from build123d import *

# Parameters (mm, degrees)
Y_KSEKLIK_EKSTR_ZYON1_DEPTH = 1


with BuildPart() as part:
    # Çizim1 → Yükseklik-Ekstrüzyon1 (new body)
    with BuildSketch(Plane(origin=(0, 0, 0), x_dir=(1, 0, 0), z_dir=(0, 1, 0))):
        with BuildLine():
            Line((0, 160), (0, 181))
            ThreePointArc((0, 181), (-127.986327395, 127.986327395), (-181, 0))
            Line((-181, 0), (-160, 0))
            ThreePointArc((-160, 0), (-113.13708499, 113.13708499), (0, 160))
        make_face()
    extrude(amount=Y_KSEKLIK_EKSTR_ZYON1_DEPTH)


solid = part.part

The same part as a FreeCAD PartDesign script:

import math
import FreeCAD as App
import Part
import Sketcher

V = App.Vector

doc = App.newDocument("Part")
body = doc.addObject("PartDesign::Body", "Body")

# Sketch on XZ plane
sketch1 = doc.addObject("Sketcher::SketchObject", "Sketch")
body.addObject(sketch1)
sketch1.AttachmentSupport = (doc.XZ_Plane, [""])
sketch1.MapMode = "FlatFace"
sketch1.addGeometry([
    Part.LineSegment(V(0, -160, 0), V(0, -181, 0)),
    Part.ArcOfCircle(Part.Circle(V(0, 0, 0), V(0, 0, 1), 181), math.radians(180), math.radians(270)),
    Part.LineSegment(V(-181, 0, 0), V(-160, 0, 0)),
    Part.ArcOfCircle(Part.Circle(V(0, 0, 0), V(0, 0, 1), 160), math.radians(180), math.radians(270)),
], False)
sketch1.addConstraint([
    Sketcher.Constraint("Coincident", 0, 2, 1, 2),
    Sketcher.Constraint("Coincident", 1, 1, 2, 1),
    Sketcher.Constraint("Coincident", 2, 2, 3, 1),
    Sketcher.Constraint("Coincident", 3, 2, 0, 1),
    Sketcher.Constraint("Vertical", 0),
    Sketcher.Constraint("Horizontal", 2),
    Sketcher.Constraint("Coincident", 1, 3, -1, 1),
    Sketcher.Constraint("Coincident", 3, 3, -1, 1),
    Sketcher.Constraint("PointOnObject", 0, 2, -2),
    Sketcher.Constraint("PointOnObject", 1, 1, -1),
    Sketcher.Constraint("Radius", 1, 181.0),
    Sketcher.Constraint("Radius", 3, 160.0),
])
pad1 = doc.addObject("PartDesign::Pad", "Pad")
body.addObject(pad1)
pad1.Profile = sketch1
pad1.Length = 1
pad1.Reversed = True

doc.recompute()
